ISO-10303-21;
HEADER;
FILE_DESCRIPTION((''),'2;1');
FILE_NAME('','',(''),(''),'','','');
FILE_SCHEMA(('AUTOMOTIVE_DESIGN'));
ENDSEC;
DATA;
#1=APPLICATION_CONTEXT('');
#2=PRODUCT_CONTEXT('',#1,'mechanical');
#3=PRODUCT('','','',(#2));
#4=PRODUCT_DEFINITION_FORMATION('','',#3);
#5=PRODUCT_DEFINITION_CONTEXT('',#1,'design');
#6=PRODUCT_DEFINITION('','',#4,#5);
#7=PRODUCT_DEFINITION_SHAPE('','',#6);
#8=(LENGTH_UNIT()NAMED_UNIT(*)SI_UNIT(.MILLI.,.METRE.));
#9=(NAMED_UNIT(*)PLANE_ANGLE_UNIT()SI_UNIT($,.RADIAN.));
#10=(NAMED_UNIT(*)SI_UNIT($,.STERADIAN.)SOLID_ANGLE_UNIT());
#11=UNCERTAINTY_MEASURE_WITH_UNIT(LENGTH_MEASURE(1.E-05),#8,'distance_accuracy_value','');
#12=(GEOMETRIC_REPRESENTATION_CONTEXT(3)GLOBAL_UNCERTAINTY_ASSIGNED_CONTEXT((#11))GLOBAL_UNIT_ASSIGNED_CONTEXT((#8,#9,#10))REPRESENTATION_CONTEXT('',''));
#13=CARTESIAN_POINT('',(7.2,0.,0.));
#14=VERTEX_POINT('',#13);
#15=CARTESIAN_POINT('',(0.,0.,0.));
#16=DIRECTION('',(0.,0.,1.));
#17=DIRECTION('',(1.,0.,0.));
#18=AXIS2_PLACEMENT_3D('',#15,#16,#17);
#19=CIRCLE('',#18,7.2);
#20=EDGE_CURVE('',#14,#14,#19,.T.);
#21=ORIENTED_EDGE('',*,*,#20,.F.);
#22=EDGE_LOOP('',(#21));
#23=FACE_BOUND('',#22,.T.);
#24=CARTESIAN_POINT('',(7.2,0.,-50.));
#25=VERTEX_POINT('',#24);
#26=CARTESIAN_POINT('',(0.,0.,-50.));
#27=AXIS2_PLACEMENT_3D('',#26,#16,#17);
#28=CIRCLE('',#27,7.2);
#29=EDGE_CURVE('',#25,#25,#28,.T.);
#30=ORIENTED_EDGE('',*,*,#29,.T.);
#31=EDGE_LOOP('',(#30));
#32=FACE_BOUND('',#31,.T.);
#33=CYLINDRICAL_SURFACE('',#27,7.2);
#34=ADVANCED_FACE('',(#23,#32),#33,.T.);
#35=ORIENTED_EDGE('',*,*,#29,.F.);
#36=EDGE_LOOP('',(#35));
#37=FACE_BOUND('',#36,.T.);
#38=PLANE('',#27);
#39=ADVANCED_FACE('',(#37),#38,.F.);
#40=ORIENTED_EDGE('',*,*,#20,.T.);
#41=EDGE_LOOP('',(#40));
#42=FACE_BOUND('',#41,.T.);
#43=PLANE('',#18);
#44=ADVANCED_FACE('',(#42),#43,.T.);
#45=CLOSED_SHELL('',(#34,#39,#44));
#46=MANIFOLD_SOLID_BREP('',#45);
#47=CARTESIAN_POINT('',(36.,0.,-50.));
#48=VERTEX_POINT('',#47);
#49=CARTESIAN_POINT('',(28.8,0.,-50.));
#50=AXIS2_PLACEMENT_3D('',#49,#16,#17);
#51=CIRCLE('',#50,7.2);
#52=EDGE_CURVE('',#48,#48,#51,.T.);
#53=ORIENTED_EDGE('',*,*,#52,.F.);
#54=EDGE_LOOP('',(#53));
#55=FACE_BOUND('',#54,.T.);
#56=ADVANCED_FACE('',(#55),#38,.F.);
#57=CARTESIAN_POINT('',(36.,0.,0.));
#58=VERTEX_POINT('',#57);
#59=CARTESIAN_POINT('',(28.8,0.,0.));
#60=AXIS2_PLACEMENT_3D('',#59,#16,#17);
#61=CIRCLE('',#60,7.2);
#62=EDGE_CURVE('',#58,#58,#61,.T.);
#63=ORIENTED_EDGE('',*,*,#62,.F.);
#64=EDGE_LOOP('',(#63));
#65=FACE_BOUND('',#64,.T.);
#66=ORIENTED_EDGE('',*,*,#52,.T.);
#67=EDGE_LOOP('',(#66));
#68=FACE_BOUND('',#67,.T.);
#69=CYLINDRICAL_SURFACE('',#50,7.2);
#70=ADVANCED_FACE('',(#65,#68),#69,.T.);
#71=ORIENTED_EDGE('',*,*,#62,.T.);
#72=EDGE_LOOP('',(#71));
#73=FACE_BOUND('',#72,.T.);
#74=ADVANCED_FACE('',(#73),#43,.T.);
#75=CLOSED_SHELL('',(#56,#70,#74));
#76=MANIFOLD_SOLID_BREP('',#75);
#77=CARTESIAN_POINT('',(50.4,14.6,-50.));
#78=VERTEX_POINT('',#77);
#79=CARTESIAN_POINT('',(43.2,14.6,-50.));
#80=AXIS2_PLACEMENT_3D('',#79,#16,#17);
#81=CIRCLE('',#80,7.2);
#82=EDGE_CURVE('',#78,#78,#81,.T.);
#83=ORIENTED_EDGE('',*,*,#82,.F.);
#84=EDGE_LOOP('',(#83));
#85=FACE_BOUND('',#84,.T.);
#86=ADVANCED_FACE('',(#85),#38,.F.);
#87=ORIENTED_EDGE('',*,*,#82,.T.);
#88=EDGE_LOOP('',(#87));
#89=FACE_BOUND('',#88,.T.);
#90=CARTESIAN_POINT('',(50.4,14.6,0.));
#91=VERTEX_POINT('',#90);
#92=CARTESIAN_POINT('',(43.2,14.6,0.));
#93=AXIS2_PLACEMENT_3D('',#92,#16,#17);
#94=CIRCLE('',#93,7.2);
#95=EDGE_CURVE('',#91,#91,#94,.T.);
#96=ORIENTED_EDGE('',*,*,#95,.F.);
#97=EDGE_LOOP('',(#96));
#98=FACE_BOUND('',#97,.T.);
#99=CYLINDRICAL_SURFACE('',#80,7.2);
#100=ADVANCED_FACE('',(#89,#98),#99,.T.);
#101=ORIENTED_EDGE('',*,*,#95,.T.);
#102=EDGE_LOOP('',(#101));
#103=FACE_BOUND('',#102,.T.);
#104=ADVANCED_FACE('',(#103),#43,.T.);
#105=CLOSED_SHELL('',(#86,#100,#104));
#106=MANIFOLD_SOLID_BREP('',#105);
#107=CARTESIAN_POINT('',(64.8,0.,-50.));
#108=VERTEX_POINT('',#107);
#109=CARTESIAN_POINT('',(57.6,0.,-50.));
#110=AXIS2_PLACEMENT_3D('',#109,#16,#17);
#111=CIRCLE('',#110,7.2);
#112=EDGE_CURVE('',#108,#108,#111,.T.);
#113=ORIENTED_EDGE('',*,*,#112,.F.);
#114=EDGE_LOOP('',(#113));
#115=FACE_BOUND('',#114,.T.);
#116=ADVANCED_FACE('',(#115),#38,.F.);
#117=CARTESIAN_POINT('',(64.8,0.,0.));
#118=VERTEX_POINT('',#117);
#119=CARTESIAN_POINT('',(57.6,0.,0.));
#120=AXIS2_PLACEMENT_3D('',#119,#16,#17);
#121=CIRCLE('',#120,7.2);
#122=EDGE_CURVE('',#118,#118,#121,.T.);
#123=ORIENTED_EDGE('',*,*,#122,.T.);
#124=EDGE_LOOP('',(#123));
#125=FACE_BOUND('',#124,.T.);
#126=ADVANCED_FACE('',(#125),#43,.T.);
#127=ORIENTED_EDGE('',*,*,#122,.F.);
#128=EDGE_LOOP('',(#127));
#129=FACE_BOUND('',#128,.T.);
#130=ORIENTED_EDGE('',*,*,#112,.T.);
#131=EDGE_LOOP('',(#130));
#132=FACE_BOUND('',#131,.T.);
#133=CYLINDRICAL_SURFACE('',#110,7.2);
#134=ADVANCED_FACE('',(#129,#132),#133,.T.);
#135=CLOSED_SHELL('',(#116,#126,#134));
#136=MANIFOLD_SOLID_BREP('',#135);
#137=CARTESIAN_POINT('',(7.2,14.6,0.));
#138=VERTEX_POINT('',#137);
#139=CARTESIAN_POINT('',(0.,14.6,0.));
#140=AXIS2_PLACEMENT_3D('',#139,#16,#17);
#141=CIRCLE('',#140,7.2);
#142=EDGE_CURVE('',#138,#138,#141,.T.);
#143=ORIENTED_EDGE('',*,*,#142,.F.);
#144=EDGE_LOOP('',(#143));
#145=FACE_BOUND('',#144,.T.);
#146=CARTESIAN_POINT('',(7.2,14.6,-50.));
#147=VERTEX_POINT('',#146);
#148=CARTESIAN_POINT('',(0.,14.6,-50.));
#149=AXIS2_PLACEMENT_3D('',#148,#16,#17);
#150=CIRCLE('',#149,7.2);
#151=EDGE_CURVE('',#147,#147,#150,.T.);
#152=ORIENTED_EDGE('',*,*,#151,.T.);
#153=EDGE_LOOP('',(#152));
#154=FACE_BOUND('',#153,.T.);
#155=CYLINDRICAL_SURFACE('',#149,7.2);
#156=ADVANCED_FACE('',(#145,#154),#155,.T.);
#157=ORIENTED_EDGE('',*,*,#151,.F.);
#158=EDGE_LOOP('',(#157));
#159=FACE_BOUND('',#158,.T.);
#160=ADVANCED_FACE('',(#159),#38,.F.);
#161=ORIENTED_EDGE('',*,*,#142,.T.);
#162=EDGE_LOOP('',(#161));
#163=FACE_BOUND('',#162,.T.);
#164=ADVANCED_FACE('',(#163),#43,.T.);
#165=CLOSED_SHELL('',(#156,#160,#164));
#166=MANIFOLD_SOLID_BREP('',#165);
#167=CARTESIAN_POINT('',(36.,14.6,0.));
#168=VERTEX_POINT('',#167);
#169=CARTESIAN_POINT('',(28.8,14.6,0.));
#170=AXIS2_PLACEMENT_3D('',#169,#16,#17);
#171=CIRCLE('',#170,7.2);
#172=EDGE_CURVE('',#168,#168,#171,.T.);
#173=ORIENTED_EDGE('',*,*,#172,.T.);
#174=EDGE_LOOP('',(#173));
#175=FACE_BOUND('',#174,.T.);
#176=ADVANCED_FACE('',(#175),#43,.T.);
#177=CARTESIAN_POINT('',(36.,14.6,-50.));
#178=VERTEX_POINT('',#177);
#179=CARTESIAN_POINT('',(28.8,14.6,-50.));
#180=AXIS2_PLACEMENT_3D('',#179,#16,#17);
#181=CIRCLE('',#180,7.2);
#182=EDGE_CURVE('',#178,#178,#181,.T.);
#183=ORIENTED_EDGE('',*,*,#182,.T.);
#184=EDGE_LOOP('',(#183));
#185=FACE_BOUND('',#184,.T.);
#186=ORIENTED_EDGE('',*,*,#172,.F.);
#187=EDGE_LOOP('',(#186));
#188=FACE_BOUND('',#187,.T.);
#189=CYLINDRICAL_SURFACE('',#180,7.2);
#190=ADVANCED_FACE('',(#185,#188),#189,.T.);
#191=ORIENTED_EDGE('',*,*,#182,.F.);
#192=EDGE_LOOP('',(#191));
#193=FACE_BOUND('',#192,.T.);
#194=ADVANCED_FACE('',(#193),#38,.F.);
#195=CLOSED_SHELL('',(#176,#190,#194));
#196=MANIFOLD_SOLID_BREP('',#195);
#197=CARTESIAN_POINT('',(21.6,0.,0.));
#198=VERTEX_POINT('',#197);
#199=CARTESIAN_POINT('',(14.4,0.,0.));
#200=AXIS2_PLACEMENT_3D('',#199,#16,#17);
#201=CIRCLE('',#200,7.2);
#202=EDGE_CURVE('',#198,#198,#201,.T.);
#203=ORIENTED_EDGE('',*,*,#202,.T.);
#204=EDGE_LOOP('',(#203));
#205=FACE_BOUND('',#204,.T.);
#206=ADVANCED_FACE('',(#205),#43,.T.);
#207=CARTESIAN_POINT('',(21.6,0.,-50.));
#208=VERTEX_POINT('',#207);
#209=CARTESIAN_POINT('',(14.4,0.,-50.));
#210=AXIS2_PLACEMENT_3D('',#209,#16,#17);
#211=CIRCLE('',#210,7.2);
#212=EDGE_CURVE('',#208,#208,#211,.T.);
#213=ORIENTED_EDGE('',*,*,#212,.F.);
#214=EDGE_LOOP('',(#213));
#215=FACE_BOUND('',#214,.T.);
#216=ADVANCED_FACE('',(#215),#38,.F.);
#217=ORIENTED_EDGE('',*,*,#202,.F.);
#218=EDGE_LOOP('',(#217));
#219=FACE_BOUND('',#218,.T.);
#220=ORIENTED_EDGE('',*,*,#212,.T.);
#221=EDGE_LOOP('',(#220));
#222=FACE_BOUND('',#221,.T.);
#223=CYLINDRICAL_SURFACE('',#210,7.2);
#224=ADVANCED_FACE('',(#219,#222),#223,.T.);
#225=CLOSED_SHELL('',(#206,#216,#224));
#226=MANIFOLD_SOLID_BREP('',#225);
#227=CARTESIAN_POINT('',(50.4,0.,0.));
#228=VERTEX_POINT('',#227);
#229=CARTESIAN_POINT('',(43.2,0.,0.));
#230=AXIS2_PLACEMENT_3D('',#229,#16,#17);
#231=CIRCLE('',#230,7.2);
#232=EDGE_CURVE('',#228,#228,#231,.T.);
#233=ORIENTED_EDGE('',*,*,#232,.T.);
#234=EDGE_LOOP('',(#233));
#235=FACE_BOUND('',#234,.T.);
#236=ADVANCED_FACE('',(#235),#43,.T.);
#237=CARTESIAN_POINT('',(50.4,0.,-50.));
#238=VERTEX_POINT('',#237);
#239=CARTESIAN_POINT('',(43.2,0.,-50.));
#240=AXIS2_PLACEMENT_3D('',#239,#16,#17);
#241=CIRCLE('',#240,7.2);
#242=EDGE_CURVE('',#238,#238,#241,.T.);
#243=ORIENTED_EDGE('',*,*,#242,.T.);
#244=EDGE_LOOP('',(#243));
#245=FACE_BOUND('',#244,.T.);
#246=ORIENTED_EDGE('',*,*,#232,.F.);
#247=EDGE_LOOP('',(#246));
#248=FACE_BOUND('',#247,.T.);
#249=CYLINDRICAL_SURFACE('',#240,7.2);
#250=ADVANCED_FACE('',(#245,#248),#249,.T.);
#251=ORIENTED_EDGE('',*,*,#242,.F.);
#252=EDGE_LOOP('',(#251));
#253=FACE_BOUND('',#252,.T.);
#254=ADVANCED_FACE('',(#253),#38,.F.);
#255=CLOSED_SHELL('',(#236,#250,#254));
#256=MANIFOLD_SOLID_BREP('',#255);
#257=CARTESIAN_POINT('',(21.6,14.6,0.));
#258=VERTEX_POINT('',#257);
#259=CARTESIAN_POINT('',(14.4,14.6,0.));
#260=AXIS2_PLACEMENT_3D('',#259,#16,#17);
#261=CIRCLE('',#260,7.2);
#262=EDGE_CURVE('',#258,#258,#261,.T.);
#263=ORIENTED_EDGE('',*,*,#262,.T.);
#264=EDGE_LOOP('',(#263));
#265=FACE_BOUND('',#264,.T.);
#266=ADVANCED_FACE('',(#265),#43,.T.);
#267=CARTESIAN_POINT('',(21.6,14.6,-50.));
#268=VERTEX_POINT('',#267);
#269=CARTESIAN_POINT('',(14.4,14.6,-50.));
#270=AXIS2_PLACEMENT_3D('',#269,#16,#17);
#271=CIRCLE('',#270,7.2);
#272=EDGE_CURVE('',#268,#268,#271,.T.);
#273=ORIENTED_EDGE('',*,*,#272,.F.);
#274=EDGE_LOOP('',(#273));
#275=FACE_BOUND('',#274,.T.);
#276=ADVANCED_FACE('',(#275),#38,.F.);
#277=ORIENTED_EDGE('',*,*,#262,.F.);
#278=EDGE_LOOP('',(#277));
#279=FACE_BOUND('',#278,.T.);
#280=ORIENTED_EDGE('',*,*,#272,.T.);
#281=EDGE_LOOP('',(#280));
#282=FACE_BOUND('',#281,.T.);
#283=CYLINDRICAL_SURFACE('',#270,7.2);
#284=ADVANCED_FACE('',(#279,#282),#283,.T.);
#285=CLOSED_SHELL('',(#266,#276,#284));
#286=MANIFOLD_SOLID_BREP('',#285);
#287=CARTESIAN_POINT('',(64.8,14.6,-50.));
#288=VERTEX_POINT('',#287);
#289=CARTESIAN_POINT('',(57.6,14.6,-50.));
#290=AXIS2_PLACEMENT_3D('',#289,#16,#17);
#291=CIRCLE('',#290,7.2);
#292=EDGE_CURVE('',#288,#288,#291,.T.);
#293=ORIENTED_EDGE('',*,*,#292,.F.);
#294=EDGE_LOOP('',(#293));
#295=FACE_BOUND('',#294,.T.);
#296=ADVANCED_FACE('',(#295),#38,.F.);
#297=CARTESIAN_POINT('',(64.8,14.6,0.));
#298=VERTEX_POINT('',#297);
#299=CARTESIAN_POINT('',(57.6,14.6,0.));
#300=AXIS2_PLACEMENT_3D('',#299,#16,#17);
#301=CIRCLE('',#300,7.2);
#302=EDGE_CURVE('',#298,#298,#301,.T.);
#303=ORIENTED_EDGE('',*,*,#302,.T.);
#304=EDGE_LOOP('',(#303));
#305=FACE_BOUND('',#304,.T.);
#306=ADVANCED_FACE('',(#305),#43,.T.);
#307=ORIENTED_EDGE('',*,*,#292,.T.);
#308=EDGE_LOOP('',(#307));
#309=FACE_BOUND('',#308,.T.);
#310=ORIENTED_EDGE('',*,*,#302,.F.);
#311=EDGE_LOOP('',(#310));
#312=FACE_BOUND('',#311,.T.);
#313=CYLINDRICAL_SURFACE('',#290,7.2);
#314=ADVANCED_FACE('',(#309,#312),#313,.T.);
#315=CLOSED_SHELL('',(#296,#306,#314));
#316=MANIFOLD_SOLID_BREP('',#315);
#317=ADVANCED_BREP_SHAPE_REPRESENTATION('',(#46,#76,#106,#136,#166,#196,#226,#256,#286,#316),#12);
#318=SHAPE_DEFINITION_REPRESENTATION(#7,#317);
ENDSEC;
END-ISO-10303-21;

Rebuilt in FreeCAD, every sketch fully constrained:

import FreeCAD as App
import Part
import Sketcher
from FreeCAD import Vector

doc = App.newDocument("Part")
params = doc.addObject("Spreadsheet::Sheet", "Params")
for row, (alias, value) in enumerate([
    ("sketch1_diameter", "14.4 mm"),
    ("pad1_length", "50 mm"),
    ("sketch2_diameter", "14.4 mm"),
    ("pad2_length", "50 mm"),
    ("sketch3_diameter", "14.4 mm"),
    ("pad3_length", "50 mm"),
    ("sketch4_diameter", "14.4 mm"),
    ("pad4_length", "50 mm"),
    ("sketch5_diameter", "14.4 mm"),
    ("pad5_length", "50 mm"),
    ("sketch6_diameter", "14.4 mm"),
    ("pad6_length", "50 mm"),
    ("sketch7_diameter", "14.4 mm"),
    ("pad7_length", "50 mm"),
    ("sketch8_diameter", "14.4 mm"),
    ("pad8_length", "50 mm"),
    ("sketch9_diameter", "14.4 mm"),
    ("pad9_length", "50 mm"),
    ("sketch10_diameter", "14.4 mm"),
    ("pad10_length", "50 mm"),
], start=1):
    params.set(f"A{row}", alias)
    params.set(f"B{row}", "=" + value)
    params.setAlias(f"B{row}", alias)

body = doc.addObject("PartDesign::Body", "Body")

# Sketch on XY plane
sketch1 = body.newObject("Sketcher::SketchObject", "Sketch")
sketch1.AttachmentSupport = (doc.getObject("XY_Plane"), [""])
sketch1.MapMode = "FlatFace"
sketch1.addGeometry(Part.Circle(Vector(0, 0, 0), Vector(0, 0, 1), 7), False)
sketch1.addConstraint([
    Sketcher.Constraint("Coincident", 0, 3, -1, 1),
    Sketcher.Constraint("Diameter", 0, 14.4),
])
sketch1.setExpression("Constraints[1]", "Params.sketch1_diameter")
pad1 = body.newObject("PartDesign::Pad", "Pad")
pad1.Profile = sketch1
pad1.setExpression("Length", "Params.pad1_length")
pad1.Reversed = True
body2 = doc.addObject("PartDesign::Body", "Body001")

# Sketch on XY plane
sketch2 = body2.newObject("Sketcher::SketchObject", "Sketch001")
sketch2.AttachmentSupport = (doc.getObject("XY_Plane001"), [""])
sketch2.MapMode = "FlatFace"
sketch2.addGeometry(Part.Circle(Vector(29, 0, 0), Vector(0, 0, 1), 7), False)
sketch2.addConstraint([
    Sketcher.Constraint("PointOnObject", 0, 3, -1),
    Sketcher.Constraint("Diameter", 0, 14.4),
    Sketcher.Constraint("DistanceX", -1, 1, 0, 3, 28.8),
])
sketch2.setExpression("Constraints[1]", "Params.sketch2_diameter")
pad2 = body2.newObject("PartDesign::Pad", "Pad001")
pad2.Profile = sketch2
pad2.setExpression("Length", "Params.pad2_length")
pad2.Reversed = True
body3 = doc.addObject("PartDesign::Body", "Body002")

# Sketch on XY plane
sketch3 = body3.newObject("Sketcher::SketchObject", "Sketch002")
sketch3.AttachmentSupport = (doc.getObject("XY_Plane002"), [""])
sketch3.MapMode = "FlatFace"
sketch3.addGeometry(Part.Circle(Vector(14, 0, 0), Vector(0, 0, 1), 7), False)
sketch3.addConstraint([
    Sketcher.Constraint("PointOnObject", 0, 3, -1),
    Sketcher.Constraint("Diameter", 0, 14.4),
    Sketcher.Constraint("DistanceX", -1, 1, 0, 3, 14.4),
])
sketch3.setExpression("Constraints[1]", "Params.sketch3_diameter")
pad3 = body3.newObject("PartDesign::Pad", "Pad002")
pad3.Profile = sketch3
pad3.setExpression("Length", "Params.pad3_length")
pad3.Reversed = True
body4 = doc.addObject("PartDesign::Body", "Body003")

# Sketch on XY plane
sketch4 = body4.newObject("Sketcher::SketchObject", "Sketch003")
sketch4.AttachmentSupport = (doc.getObject("XY_Plane003"), [""])
sketch4.MapMode = "FlatFace"
sketch4.addGeometry(Part.Circle(Vector(43, 0, 0), Vector(0, 0, 1), 7), False)
sketch4.addConstraint([
    Sketcher.Constraint("PointOnObject", 0, 3, -1),
    Sketcher.Constraint("Diameter", 0, 14.4),
    Sketcher.Constraint("DistanceX", -1, 1, 0, 3, 43.2),
])
sketch4.setExpression("Constraints[1]", "Params.sketch4_diameter")
pad4 = body4.newObject("PartDesign::Pad", "Pad003")
pad4.Profile = sketch4
pad4.setExpression("Length", "Params.pad4_length")
pad4.Reversed = True
body5 = doc.addObject("PartDesign::Body", "Body004")

# Sketch on XY plane
sketch5 = body5.newObject("Sketcher::SketchObject", "Sketch004")
sketch5.AttachmentSupport = (doc.getObject("XY_Plane004"), [""])
sketch5.MapMode = "FlatFace"
sketch5.addGeometry(Part.Circle(Vector(58, 0, 0), Vector(0, 0, 1), 7), False)
sketch5.addConstraint([
    Sketcher.Constraint("PointOnObject", 0, 3, -1),
    Sketcher.Constraint("Diameter", 0, 14.4),
    Sketcher.Constraint("DistanceX", -1, 1, 0, 3, 57.6),
])
sketch5.setExpression("Constraints[1]", "Params.sketch5_diameter")
pad5 = body5.newObject("PartDesign::Pad", "Pad004")
pad5.Profile = sketch5
pad5.setExpression("Length", "Params.pad5_length")
pad5.Reversed = True
body6 = doc.addObject("PartDesign::Body", "Body005")

# Sketch on XY plane
sketch6 = body6.newObject("Sketcher::SketchObject", "Sketch005")
sketch6.AttachmentSupport = (doc.getObject("XY_Plane005"), [""])
sketch6.MapMode = "FlatFace"
sketch6.addGeometry(Part.Circle(Vector(0, 15, 0), Vector(0, 0, 1), 7), False)
sketch6.addConstraint([
    Sketcher.Constraint("PointOnObject", 0, 3, -2),
    Sketcher.Constraint("Diameter", 0, 14.4),
    Sketcher.Constraint("DistanceY", -1, 1, 0, 3, 14.6),
])
sketch6.setExpression("Constraints[1]", "Params.sketch6_diameter")
pad6 = body6.newObject("PartDesign::Pad", "Pad005")
pad6.Profile = sketch6
pad6.setExpression("Length", "Params.pad6_length")
pad6.Reversed = True
body7 = doc.addObject("PartDesign::Body", "Body006")

# Sketch on XY plane
sketch7 = body7.newObject("Sketcher::SketchObject", "Sketch006")
sketch7.AttachmentSupport = (doc.getObject("XY_Plane006"), [""])
sketch7.MapMode = "FlatFace"
sketch7.addGeometry(Part.Circle(Vector(14, 15, 0), Vector(0, 0, 1), 7), False)
sketch7.addConstraint([
    Sketcher.Constraint("Diameter", 0, 14.4),
    Sketcher.Constraint("DistanceX", -1, 1, 0, 3, 14.4),
    Sketcher.Constraint("DistanceY", -1, 1, 0, 3, 14.6),
])
sketch7.setExpression("Constraints[0]", "Params.sketch7_diameter")
pad7 = body7.newObject("PartDesign::Pad", "Pad006")
pad7.Profile = sketch7
pad7.setExpression("Length", "Params.pad7_length")
pad7.Reversed = True
body8 = doc.addObject("PartDesign::Body", "Body007")

# Sketch on XY plane
sketch8 = body8.newObject("Sketcher::SketchObject", "Sketch007")
sketch8.AttachmentSupport = (doc.getObject("XY_Plane007"), [""])
sketch8.MapMode = "FlatFace"
sketch8.addGeometry(Part.Circle(Vector(29, 15, 0), Vector(0, 0, 1), 7), False)
sketch8.addConstraint([
    Sketcher.Constraint("Diameter", 0, 14.4),
    Sketcher.Constraint("DistanceX", -1, 1, 0, 3, 28.8),
    Sketcher.Constraint("DistanceY", -1, 1, 0, 3, 14.6),
])
sketch8.setExpression("Constraints[0]", "Params.sketch8_diameter")
pad8 = body8.newObject("PartDesign::Pad", "Pad007")
pad8.Profile = sketch8
pad8.setExpression("Length", "Params.pad8_length")
pad8.Reversed = True
body9 = doc.addObject("PartDesign::Body", "Body008")

# Sketch on XY plane
sketch9 = body9.newObject("Sketcher::SketchObject", "Sketch008")
sketch9.AttachmentSupport = (doc.getObject("XY_Plane008"), [""])
sketch9.MapMode = "FlatFace"
sketch9.addGeometry(Part.Circle(Vector(43, 15, 0), Vector(0, 0, 1), 7), False)
sketch9.addConstraint([
    Sketcher.Constraint("Diameter", 0, 14.4),
    Sketcher.Constraint("DistanceX", -1, 1, 0, 3, 43.2),
    Sketcher.Constraint("DistanceY", -1, 1, 0, 3, 14.6),
])
sketch9.setExpression("Constraints[0]", "Params.sketch9_diameter")
pad9 = body9.newObject("PartDesign::Pad", "Pad008")
pad9.Profile = sketch9
pad9.setExpression("Length", "Params.pad9_length")
pad9.Reversed = True
body10 = doc.addObject("PartDesign::Body", "Body009")

# Sketch on XY plane
sketch10 = body10.newObject("Sketcher::SketchObject", "Sketch009")
sketch10.AttachmentSupport = (doc.getObject("XY_Plane009"), [""])
sketch10.MapMode = "FlatFace"
sketch10.addGeometry(Part.Circle(Vector(58, 15, 0), Vector(0, 0, 1), 7), False)
sketch10.addConstraint([
    Sketcher.Constraint("Diameter", 0, 14.4),
    Sketcher.Constraint("DistanceX", -1, 1, 0, 3, 57.6),
    Sketcher.Constraint("DistanceY", -1, 1, 0, 3, 14.6),
])
sketch10.setExpression("Constraints[0]", "Params.sketch10_diameter")
pad10 = body10.newObject("PartDesign::Pad", "Pad009")
pad10.Profile = sketch10
pad10.setExpression("Length", "Params.pad10_length")
pad10.Reversed = True

doc.recompute()
